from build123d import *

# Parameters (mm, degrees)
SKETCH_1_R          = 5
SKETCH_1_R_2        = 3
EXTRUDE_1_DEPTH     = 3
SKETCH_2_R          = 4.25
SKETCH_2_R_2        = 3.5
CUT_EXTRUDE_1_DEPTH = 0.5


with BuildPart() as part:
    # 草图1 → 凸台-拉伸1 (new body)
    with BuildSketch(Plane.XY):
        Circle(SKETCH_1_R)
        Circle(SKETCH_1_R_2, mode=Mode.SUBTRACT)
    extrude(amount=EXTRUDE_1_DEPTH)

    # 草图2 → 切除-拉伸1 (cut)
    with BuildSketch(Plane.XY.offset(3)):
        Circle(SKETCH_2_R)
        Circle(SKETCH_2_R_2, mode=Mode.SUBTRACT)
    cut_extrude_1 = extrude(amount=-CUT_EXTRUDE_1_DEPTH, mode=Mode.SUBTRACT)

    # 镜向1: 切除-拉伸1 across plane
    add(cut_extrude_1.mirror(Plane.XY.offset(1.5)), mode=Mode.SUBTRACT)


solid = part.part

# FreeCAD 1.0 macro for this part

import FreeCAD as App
import Part
import Sketcher
from FreeCAD import Vector

doc = App.newDocument("Part")
body = doc.addObject("PartDesign::Body", "Body")

# Sketch on XY plane
sketch1 = doc.addObject("Sketcher::SketchObject", "Sketch")
body.addObject(sketch1)
sketch1.AttachmentSupport = (doc.XY_Plane, [""])
sketch1.MapMode = "FlatFace"
sketch1.addGeometry(Part.Circle(Vector(0, 0, 0), Vector(0, 0, 1), 5), False)
sketch1.addGeometry(Part.Circle(Vector(0, 0, 0), Vector(0, 0, 1), 3), False)
sketch1.addConstraint(Sketcher.Constraint("Coincident", 0, 3, -1, 1))
sketch1.addConstraint(Sketcher.Constraint("Coincident", 1, 3, -1, 1))
sketch1.addConstraint(Sketcher.Constraint("Diameter", 0, 10.0))
sketch1.addConstraint(Sketcher.Constraint("Diameter", 1, 6.0))
pad1 = doc.addObject("PartDesign::Pad", "Pad")
body.addObject(pad1)
pad1.Profile = sketch1
pad1.Length = 3

# Sketch on XY plane
sketch2 = doc.addObject("Sketcher::SketchObject", "Sketch001")
body.addObject(sketch2)
sketch2.AttachmentSupport = (doc.XY_Plane, [""])
sketch2.MapMode = "FlatFace"
sketch2.AttachmentOffset = App.Placement(Vector(0, 0, 3), App.Rotation())
sketch2.addGeometry(Part.Circle(Vector(0, 0, 0), Vector(0, 0, 1), 4.2), False)
sketch2.addGeometry(Part.Circle(Vector(0, 0, 0), Vector(0, 0, 1), 3.5), False)
sketch2.addConstraint(Sketcher.Constraint("Coincident", 0, 3, -1, 1))
sketch2.addConstraint(Sketcher.Constraint("Coincident", 1, 3, -1, 1))
sketch2.addConstraint(Sketcher.Constraint("Diameter", 1, 7.0))
sketch2.addConstraint(Sketcher.Constraint("Diameter", 0, 8.5))
pocket1 = doc.addObject("PartDesign::Pocket", "Pocket")
body.addObject(pocket1)
pocket1.Profile = sketch2
pocket1.Length = 0.5
doc.recompute()

datumplane = doc.addObject("PartDesign::Plane", "DatumPlane")
body.addObject(datumplane)
datumplane.AttachmentSupport = (doc.XY_Plane, [""])
datumplane.MapMode = "FlatFace"
datumplane.AttachmentOffset = App.Placement(Vector(0, 0, 1.5), App.Rotation())
mirrored = doc.addObject("PartDesign::Mirrored", "Mirrored")
body.addObject(mirrored)
mirrored.Originals = [pocket1]
mirrored.MirrorPlane = (datumplane, [""])
body.Tip = mirrored

doc.recompute()
